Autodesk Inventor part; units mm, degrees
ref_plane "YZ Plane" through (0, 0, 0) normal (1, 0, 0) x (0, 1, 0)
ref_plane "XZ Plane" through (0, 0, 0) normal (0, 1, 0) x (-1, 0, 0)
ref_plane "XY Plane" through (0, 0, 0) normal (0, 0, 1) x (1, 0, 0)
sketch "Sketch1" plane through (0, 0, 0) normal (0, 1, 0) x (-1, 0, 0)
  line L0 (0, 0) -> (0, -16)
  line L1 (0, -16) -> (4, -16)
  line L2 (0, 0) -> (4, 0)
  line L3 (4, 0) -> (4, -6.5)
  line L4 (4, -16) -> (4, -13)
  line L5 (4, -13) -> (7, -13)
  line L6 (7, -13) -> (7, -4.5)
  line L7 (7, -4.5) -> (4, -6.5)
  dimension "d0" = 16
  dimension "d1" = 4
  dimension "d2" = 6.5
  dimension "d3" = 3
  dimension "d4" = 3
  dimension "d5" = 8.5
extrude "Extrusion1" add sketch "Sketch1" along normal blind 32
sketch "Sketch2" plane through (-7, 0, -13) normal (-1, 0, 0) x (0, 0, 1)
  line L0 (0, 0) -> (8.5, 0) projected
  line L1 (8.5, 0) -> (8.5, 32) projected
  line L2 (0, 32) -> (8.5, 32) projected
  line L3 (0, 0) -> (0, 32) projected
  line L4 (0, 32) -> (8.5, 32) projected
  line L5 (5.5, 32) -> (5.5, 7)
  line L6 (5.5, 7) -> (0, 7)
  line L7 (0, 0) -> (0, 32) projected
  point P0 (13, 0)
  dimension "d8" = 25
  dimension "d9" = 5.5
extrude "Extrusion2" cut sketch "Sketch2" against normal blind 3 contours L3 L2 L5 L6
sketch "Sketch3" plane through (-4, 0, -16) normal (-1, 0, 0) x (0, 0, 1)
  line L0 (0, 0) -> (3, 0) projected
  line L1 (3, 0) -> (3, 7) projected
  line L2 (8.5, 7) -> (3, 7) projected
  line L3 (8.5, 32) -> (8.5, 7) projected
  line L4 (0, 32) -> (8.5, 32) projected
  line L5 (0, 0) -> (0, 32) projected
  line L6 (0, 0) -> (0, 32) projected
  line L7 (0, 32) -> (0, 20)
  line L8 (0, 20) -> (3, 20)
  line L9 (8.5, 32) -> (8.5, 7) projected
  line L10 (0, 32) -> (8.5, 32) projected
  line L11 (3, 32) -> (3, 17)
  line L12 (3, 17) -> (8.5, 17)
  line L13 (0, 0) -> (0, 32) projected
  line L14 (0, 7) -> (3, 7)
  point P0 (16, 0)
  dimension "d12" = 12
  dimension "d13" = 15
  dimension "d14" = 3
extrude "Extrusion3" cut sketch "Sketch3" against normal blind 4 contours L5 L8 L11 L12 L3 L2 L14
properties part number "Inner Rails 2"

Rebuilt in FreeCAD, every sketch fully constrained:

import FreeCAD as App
import Part
import Sketcher
Q = App.Units.Quantity


def add_polygon(sketch, points):
    """Adds a closed chain of lines whose ends are joined by coincident constraints."""
    first, n = sketch.GeometryCount, len(points)
    for a, b in zip(points, points[1:] + points[:1]):
        sketch.addGeometry(Part.LineSegment(App.Vector(*a, 0), App.Vector(*b, 0)), False)
    for i in range(n):
        sketch.addConstraint(Sketcher.Constraint("Coincident", first + i, 2, first + (i + 1) % n, 1))

doc = App.newDocument("Part")
body = doc.addObject("PartDesign::Body", "Body")

# Sketch on XZ plane
sketch1 = body.newObject("Sketcher::SketchObject", "Sketch")
sketch1.AttachmentSupport = (doc.getObject("XZ_Plane"), [""])
sketch1.MapMode = "FlatFace"
add_polygon(sketch1, [(-4, 0), (0, 0), (0, -16), (-4, -16), (-4, -13), (-7, -13), (-7, -4.5), (-4, -6.5)])  # lines 0-7
sketch1.addConstraint([
    Sketcher.Constraint("Horizontal", 0),
    Sketcher.Constraint("Vertical", 1),
    Sketcher.Constraint("Horizontal", 2),
    Sketcher.Constraint("Vertical", 3),
    Sketcher.Constraint("Horizontal", 4),
    Sketcher.Constraint("Vertical", 5),
    Sketcher.Constraint("Vertical", 7),
    Sketcher.Constraint("Coincident", 0, 2, -1, 1),
    Sketcher.Constraint("Vertical", 3, 2, 6, 2),
    Sketcher.Constraint("Equal", 4, 3),
    Sketcher.Constraint("DistanceX", 0, 1, 0, 2, Q("4 mm")),
    Sketcher.Constraint("DistanceX", 4, 2, 4, 1, Q("3 mm")),
    Sketcher.Constraint("DistanceY", 1, 2, 1, 1, Q("16 mm")),
    Sketcher.Constraint("DistanceY", 5, 1, 5, 2, Q("8.5 mm")),
    Sketcher.Constraint("DistanceY", 7, 1, 7, 2, Q("6.5 mm")),
])
pad1 = body.newObject("PartDesign::Pad", "Pad")
pad1.Profile = sketch1
pad1.Length = 32
pad1.Reversed = True

# Sketch on YZ plane
sketch2 = body.newObject("Sketcher::SketchObject", "Sketch001")
sketch2.AttachmentSupport = (doc.getObject("YZ_Plane"), [""])
sketch2.MapMode = "FlatFace"
sketch2.AttachmentOffset = App.Placement(App.Vector(0, 0, -7), App.Rotation())
add_polygon(sketch2, [(32, -13), (7, -13), (7, -8), (32, -8)])  # lines 0-3
sketch2.addConstraint([
    Sketcher.Constraint("Horizontal", 0),
    Sketcher.Constraint("Vertical", 1),
    Sketcher.Constraint("Horizontal", 2),
    Sketcher.Constraint("Vertical", 3),
    Sketcher.Constraint("DistanceX", 0, 2, 0, 1, Q("25 mm")),
    Sketcher.Constraint("DistanceY", 1, 1, 1, 2, Q("5.5 mm")),
    Sketcher.Constraint("DistanceX", -1, 1, 0, 2, Q("7 mm")),
    Sketcher.Constraint("DistanceY", 0, 2, -1, 1, Q("13 mm")),
])
pocket1 = body.newObject("PartDesign::Pocket", "Pocket")
pocket1.Profile = sketch2
pocket1.Length = 3
pocket1.Reversed = True

# Sketch on YZ plane
sketch3 = body.newObject("Sketcher::SketchObject", "Sketch002")
sketch3.AttachmentSupport = (doc.getObject("YZ_Plane"), [""])
sketch3.MapMode = "FlatFace"
sketch3.AttachmentOffset = App.Placement(App.Vector(0, 0, -4), App.Rotation())
add_polygon(sketch3, [(20, -16), (7, -16), (7, -7.5), (17, -7.5), (17, -13), (20, -13)])  # lines 0-5
sketch3.addConstraint([
    Sketcher.Constraint("Horizontal", 0),
    Sketcher.Constraint("Vertical", 1),
    Sketcher.Constraint("Horizontal", 2),
    Sketcher.Constraint("Vertical", 3),
    Sketcher.Constraint("Horizontal", 4),
    Sketcher.Constraint("Vertical", 5),
    Sketcher.Constraint("Equal", 4, 5),
    Sketcher.Constraint("DistanceX", 4, 1, 4, 2, Q("3 mm")),
    Sketcher.Constraint("DistanceX", 0, 2, 0, 1, Q("13 mm")),
    Sketcher.Constraint("DistanceY", 1, 1, 1, 2, Q("8.5 mm")),
    Sketcher.Constraint("DistanceX", -1, 1, 0, 2, Q("7 mm")),
    Sketcher.Constraint("DistanceY", 0, 2, -1, 1, Q("16 mm")),
])
pocket2 = body.newObject("PartDesign::Pocket", "Pocket001")
pocket2.Profile = sketch3
pocket2.Length = 4
pocket2.Reversed = True

doc.recompute()
